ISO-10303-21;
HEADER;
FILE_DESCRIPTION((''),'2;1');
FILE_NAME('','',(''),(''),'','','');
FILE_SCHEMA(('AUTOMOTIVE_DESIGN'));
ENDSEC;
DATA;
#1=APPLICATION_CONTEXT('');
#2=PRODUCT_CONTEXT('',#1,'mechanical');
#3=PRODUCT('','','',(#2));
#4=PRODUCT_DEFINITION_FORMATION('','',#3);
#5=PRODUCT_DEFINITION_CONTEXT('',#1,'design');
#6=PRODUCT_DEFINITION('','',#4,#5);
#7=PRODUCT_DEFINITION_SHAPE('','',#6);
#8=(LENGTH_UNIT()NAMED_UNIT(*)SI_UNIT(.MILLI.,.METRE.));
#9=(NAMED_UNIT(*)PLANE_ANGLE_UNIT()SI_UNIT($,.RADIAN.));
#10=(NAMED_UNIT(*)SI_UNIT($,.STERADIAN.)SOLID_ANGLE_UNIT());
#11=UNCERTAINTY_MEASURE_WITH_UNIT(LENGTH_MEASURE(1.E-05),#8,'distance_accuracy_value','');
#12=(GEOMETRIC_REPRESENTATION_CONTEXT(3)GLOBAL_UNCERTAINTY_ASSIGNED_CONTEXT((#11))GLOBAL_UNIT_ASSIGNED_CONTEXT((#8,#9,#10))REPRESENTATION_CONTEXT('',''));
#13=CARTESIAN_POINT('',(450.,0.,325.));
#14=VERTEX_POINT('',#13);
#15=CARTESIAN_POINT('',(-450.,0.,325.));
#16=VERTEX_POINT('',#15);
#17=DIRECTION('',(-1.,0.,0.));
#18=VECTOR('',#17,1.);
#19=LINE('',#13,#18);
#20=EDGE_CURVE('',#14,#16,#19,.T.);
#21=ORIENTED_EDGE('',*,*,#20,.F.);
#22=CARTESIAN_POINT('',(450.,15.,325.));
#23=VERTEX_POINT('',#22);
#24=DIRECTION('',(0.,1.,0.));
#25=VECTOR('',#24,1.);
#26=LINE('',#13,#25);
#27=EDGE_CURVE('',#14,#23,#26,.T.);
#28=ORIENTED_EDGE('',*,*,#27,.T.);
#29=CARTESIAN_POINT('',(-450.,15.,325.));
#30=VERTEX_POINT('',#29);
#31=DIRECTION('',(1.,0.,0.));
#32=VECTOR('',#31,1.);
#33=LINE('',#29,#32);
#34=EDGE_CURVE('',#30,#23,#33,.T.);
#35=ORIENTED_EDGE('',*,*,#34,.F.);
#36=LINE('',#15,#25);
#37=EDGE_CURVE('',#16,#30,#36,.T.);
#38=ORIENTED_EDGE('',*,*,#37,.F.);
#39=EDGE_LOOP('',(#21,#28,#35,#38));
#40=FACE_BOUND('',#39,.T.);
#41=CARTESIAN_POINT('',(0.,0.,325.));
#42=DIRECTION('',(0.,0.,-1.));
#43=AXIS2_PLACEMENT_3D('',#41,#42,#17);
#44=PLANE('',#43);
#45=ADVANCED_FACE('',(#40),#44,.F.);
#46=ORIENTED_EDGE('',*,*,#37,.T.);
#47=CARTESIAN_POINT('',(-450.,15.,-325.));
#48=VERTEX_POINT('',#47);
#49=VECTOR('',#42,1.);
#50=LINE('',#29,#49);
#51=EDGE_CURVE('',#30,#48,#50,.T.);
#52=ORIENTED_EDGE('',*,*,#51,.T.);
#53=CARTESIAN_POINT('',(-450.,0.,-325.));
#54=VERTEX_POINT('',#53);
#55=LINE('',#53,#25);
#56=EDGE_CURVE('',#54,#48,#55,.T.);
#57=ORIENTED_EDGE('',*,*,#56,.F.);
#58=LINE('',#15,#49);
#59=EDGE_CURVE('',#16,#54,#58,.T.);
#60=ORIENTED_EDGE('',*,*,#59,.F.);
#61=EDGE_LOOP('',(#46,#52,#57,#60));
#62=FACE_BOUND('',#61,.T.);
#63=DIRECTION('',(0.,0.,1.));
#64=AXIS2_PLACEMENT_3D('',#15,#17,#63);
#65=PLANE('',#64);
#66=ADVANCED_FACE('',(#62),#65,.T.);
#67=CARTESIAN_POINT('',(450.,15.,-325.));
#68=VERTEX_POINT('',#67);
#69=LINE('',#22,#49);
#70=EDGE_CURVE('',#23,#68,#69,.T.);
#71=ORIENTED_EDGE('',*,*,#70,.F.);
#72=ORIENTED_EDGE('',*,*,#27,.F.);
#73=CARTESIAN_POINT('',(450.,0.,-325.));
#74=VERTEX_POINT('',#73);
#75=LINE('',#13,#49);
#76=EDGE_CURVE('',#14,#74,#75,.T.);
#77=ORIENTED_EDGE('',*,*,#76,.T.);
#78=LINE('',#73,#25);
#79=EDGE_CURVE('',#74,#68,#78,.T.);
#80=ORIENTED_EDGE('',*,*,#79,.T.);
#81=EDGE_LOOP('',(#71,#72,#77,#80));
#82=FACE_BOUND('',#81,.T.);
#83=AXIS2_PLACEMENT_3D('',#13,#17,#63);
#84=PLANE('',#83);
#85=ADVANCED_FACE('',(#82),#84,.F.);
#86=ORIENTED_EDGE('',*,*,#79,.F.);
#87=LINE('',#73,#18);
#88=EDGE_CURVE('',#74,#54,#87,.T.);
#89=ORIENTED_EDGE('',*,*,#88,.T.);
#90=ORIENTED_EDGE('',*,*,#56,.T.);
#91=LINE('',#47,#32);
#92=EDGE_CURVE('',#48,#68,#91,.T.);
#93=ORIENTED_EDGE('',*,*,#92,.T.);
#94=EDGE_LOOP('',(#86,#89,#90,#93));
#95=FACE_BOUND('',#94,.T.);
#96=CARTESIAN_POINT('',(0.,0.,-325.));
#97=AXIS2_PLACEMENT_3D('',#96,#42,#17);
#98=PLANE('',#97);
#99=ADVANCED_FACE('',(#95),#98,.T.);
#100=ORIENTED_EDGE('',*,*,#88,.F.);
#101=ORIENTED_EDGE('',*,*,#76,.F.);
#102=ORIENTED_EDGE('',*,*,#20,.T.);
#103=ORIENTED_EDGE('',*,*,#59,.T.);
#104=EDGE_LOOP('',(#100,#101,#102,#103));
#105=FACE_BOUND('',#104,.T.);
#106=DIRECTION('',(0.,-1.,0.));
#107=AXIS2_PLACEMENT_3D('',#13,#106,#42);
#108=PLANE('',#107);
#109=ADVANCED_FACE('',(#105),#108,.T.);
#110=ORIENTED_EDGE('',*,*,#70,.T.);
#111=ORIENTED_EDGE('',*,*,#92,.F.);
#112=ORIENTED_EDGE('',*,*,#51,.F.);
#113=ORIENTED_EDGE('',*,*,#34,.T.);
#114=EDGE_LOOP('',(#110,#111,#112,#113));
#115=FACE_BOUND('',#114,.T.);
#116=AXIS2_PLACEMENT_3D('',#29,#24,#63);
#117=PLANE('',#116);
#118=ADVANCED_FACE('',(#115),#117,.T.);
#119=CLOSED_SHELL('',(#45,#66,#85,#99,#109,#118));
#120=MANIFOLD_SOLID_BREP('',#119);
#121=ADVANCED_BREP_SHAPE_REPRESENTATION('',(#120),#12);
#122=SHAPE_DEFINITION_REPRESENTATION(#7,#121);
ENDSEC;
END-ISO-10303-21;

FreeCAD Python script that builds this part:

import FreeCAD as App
import Part
import Sketcher

doc = App.newDocument("Part")
body = doc.addObject("PartDesign::Body", "Body")

# Sketch on XY plane
sketch1 = doc.addObject("Sketcher::SketchObject", "Sketch")
body.addObject(sketch1)
sketch1.AttachmentSupport = (doc.XY_Plane, [""])
sketch1.MapMode = "FlatFace"
sketch1.addGeometry(Part.LineSegment(App.Vector(-450, 15, 0), App.Vector(-450, 0, 0)), False)
sketch1.addGeometry(Part.LineSegment(App.Vector(-450, 0, 0), App.Vector(450, 0, 0)), False)
sketch1.addGeometry(Part.LineSegment(App.Vector(450, 0, 0), App.Vector(450, 15, 0)), False)
sketch1.addGeometry(Part.LineSegment(App.Vector(450, 15, 0), App.Vector(-450, 15, 0)), False)
sketch1.addConstraint(Sketcher.Constraint("Coincident", 0, 2, 1, 1))
sketch1.addConstraint(Sketcher.Constraint("Coincident", 1, 2, 2, 1))
sketch1.addConstraint(Sketcher.Constraint("Coincident", 2, 2, 3, 1))
sketch1.addConstraint(Sketcher.Constraint("Coincident", 3, 2, 0, 1))
sketch1.addConstraint(Sketcher.Constraint("Vertical", 0))
sketch1.addConstraint(Sketcher.Constraint("Horizontal", 1))
sketch1.addConstraint(Sketcher.Constraint("Vertical", 2))
sketch1.addConstraint(Sketcher.Constraint("Horizontal", 3))
sketch1.addConstraint(Sketcher.Constraint("Symmetric", 0, 2, 1, 2, -1, 1))
sketch1.addConstraint(Sketcher.Constraint("DistanceX", 1, 1, 1, 2, 900.0))
sketch1.addConstraint(Sketcher.Constraint("DistanceY", 0, 2, 0, 1, 15.0))
pad1 = doc.addObject("PartDesign::Pad", "Pad")
body.addObject(pad1)
pad1.Profile = sketch1
pad1.Length = 650
pad1.Midplane = True

doc.recompute()
